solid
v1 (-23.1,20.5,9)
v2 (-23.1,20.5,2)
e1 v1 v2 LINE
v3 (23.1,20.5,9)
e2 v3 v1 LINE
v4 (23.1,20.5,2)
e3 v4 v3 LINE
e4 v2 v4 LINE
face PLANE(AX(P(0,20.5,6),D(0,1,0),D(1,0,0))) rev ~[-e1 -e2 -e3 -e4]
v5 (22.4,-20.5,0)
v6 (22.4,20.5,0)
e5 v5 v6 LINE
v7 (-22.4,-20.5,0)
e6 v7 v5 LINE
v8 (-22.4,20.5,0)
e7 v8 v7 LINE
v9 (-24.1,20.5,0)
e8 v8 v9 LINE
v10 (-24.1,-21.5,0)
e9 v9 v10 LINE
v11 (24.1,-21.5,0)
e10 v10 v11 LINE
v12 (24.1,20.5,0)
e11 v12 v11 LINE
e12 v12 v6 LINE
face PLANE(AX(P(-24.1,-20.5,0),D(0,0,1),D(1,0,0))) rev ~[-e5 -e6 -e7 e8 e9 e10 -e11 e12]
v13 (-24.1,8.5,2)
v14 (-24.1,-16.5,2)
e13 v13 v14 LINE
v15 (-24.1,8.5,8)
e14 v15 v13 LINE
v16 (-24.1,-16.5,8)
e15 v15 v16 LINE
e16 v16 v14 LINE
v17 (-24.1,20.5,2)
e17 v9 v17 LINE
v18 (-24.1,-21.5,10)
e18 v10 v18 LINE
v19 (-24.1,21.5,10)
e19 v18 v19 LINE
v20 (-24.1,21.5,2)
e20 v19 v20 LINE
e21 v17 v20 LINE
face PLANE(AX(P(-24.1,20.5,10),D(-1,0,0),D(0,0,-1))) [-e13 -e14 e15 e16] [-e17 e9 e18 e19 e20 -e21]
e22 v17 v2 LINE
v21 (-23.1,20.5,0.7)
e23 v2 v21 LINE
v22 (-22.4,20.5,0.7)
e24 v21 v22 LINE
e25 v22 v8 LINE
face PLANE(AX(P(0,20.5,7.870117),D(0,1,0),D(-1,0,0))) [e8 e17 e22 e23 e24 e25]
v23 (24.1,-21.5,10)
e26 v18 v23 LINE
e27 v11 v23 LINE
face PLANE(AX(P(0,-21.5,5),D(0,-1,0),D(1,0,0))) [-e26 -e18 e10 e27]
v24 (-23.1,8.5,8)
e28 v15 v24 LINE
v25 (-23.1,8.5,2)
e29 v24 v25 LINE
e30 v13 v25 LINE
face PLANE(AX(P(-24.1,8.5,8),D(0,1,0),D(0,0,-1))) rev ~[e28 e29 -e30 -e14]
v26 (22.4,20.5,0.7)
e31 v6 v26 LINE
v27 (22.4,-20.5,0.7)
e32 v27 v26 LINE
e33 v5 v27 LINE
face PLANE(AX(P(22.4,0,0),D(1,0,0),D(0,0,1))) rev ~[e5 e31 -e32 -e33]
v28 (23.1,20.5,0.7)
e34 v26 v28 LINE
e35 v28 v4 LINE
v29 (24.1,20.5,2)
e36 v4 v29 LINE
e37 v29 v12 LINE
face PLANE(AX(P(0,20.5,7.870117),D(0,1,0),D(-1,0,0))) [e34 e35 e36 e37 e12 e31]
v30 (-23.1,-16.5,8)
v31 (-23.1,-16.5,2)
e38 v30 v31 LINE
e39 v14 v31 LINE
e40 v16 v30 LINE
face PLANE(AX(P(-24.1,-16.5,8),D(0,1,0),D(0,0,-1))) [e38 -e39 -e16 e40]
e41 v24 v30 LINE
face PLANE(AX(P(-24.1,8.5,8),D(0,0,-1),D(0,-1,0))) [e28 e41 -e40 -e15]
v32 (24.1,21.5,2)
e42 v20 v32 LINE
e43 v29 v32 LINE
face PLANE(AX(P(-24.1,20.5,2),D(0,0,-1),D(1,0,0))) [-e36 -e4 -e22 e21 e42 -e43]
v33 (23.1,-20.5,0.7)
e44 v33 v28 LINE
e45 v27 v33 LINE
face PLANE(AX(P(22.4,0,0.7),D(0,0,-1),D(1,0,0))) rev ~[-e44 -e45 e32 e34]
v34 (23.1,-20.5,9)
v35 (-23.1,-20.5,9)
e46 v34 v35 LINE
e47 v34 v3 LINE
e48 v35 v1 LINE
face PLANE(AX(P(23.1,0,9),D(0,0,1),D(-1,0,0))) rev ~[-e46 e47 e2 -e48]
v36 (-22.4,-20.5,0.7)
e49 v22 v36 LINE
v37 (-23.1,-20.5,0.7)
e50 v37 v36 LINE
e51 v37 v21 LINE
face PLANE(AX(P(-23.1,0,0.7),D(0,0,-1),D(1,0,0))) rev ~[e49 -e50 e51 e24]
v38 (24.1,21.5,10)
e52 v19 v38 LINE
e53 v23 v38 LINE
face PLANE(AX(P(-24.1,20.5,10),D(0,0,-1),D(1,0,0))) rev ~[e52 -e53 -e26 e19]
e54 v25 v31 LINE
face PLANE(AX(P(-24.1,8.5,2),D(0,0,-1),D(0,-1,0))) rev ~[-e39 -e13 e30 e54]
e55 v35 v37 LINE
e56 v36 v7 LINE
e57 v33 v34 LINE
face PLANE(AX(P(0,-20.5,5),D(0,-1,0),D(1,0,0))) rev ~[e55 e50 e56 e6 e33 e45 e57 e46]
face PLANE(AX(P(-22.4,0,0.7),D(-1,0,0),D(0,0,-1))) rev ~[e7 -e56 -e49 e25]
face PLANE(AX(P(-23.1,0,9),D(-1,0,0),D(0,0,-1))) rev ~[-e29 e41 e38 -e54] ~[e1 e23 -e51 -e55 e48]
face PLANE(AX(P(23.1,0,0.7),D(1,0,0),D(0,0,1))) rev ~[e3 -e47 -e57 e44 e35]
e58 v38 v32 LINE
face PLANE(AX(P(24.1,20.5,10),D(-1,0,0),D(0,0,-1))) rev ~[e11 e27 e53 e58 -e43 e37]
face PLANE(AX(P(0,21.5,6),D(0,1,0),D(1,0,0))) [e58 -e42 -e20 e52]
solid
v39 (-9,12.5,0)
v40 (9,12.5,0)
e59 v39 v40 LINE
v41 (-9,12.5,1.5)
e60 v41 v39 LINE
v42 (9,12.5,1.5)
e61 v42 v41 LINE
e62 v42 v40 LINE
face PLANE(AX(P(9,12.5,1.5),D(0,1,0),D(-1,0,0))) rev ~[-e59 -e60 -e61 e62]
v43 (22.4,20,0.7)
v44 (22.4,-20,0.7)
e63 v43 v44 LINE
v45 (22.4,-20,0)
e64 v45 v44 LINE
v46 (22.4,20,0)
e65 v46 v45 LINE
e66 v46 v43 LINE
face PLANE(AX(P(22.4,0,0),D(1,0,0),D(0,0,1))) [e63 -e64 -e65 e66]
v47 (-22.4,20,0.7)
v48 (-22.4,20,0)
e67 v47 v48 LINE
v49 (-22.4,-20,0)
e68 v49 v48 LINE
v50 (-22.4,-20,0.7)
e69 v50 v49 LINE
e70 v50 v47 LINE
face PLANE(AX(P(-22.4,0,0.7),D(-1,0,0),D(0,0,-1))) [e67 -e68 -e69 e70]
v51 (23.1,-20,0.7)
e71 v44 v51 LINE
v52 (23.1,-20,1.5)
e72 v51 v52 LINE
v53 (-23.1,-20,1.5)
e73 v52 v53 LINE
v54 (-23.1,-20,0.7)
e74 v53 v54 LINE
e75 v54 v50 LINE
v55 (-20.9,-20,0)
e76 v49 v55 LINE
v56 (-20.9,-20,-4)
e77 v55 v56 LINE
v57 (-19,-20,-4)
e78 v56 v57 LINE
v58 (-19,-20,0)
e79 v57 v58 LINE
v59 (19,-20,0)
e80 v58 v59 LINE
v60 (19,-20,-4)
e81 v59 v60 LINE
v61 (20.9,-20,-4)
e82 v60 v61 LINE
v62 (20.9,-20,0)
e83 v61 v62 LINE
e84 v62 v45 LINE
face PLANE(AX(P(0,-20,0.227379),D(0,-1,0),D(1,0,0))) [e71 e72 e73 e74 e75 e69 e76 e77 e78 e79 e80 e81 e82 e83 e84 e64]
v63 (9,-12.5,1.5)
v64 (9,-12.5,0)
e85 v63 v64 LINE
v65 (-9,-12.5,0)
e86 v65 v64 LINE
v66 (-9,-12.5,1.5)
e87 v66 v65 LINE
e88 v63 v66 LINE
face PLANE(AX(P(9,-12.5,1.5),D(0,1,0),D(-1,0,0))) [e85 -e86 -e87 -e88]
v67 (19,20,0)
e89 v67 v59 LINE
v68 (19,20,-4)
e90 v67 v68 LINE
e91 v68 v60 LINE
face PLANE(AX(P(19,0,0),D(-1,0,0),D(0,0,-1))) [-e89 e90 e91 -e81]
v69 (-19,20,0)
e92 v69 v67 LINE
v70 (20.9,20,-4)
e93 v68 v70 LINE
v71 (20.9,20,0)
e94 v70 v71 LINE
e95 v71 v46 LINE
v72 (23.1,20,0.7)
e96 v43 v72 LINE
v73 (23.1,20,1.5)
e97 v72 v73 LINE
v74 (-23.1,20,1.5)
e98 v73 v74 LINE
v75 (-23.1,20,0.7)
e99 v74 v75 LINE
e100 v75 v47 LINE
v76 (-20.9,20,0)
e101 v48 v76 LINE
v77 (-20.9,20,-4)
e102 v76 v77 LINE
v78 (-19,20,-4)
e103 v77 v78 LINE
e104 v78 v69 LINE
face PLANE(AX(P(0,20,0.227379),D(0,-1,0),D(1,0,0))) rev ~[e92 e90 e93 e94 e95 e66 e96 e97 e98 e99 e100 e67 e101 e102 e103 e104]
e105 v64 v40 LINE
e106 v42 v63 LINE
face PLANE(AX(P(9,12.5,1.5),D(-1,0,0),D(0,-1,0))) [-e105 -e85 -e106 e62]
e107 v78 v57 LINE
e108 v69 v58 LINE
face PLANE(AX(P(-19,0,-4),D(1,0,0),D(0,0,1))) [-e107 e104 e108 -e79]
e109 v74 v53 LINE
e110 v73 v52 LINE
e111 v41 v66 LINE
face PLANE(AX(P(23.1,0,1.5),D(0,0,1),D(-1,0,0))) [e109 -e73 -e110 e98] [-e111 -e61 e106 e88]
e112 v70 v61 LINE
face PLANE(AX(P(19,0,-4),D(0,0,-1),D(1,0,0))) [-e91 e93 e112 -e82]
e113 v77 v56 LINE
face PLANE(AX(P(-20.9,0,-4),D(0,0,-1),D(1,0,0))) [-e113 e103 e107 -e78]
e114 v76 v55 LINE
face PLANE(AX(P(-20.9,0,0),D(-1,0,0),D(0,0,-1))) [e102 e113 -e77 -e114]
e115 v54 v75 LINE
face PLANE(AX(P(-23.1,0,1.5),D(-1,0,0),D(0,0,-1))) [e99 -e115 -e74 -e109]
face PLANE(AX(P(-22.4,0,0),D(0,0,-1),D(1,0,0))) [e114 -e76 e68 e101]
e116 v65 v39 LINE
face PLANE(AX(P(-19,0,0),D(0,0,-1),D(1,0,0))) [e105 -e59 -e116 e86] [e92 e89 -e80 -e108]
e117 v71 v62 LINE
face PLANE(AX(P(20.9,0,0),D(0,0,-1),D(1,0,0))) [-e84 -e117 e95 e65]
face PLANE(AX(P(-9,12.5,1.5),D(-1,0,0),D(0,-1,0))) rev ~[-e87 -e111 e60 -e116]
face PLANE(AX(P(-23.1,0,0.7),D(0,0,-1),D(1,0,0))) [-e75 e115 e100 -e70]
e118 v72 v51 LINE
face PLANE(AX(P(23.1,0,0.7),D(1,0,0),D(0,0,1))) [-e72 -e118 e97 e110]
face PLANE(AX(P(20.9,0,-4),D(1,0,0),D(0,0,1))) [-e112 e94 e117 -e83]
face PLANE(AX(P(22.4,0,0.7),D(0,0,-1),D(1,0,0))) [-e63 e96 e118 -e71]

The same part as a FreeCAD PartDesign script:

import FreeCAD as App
import Part
import Sketcher
Q = App.Units.Quantity


def add_polygon(sketch, points):
    """Adds a closed chain of lines whose ends are joined by coincident constraints."""
    first, n = sketch.GeometryCount, len(points)
    for a, b in zip(points, points[1:] + points[:1]):
        sketch.addGeometry(Part.LineSegment(App.Vector(*a, 0), App.Vector(*b, 0)), False)
    for i in range(n):
        sketch.addConstraint(Sketcher.Constraint("Coincident", first + i, 2, first + (i + 1) % n, 1))

doc = App.newDocument("Part")
body = doc.addObject("PartDesign::Body", "Body")

# Sketch on XZ plane
sketch1 = body.newObject("Sketcher::SketchObject", "Sketch")
sketch1.AttachmentSupport = (doc.getObject("XZ_Plane"), [""])
sketch1.MapMode = "FlatFace"
add_polygon(sketch1, [(-22.4, 0), (-20.9, 0), (-20.9, -4), (-19, -4), (-19, 0), (19, 0), (19, -4), (20.9, -4), (20.9, 0), (22.4, 0), (22.4, 0.7), (23.1, 0.7), (23.1, 1.5), (-23.1, 1.5), (-23.1, 0.7), (-22.4, 0.7)])  # lines 0-15
sketch1.addConstraint([
    Sketcher.Constraint("Horizontal", 0),
    Sketcher.Constraint("Vertical", 1),
    Sketcher.Constraint("Horizontal", 2),
    Sketcher.Constraint("Vertical", 3),
    Sketcher.Constraint("Horizontal", 4),
    Sketcher.Constraint("Vertical", 5),
    Sketcher.Constraint("Horizontal", 6),
    Sketcher.Constraint("Vertical", 7),
    Sketcher.Constraint("Horizontal", 8),
    Sketcher.Constraint("Vertical", 9),
    Sketcher.Constraint("Horizontal", 10),
    Sketcher.Constraint("Vertical", 11),
    Sketcher.Constraint("Horizontal", 12),
    Sketcher.Constraint("Vertical", 13),
    Sketcher.Constraint("Horizontal", 14),
    Sketcher.Constraint("Vertical", 15),
    Sketcher.Constraint("Symmetric", 3, 2, 4, 2, -1, 1),
    Sketcher.Constraint("Symmetric", 0, 2, 7, 2, -1, 1),
    Sketcher.Constraint("Symmetric", 10, 2, 13, 2, -2),
    Sketcher.Constraint("Symmetric", 8, 2, 15, 2, -2),
    Sketcher.Constraint("Horizontal", 2, 2, 5, 2),
    Sketcher.Constraint("Equal", 14, 9),
    Sketcher.Constraint("DistanceX", 4, 1, 4, 2, Q("38 mm")),
    Sketcher.Constraint("DistanceY", 1, 2, 1, 1, Q("4 mm")),
    Sketcher.Constraint("DistanceX", 0, 1, 0, 2, Q("1.5 mm")),
    Sketcher.Constraint("DistanceX", 2, 1, 2, 2, Q("1.9 mm")),
    Sketcher.Constraint("DistanceX", 10, 1, 10, 2, Q("0.7 mm")),
    Sketcher.Constraint("DistanceY", 11, 1, 11, 2, Q("0.8 mm")),
])
pad1 = body.newObject("PartDesign::Pad", "Pad")
pad1.Profile = sketch1
pad1.Length = 40
pad1.Midplane = True

# Sketch on XY plane
sketch2 = body.newObject("Sketcher::SketchObject", "Sketch001")
sketch2.AttachmentSupport = (doc.getObject("XY_Plane"), [""])
sketch2.MapMode = "FlatFace"
sketch2.AttachmentOffset = App.Placement(App.Vector(0, 0, 1.5), App.Rotation())
add_polygon(sketch2, [(9, -12), (9, 12), (-9, 12), (-9, -12)])  # lines 0-3
sketch2.addConstraint([
    Sketcher.Constraint("Vertical", 0),
    Sketcher.Constraint("Horizontal", 1),
    Sketcher.Constraint("Vertical", 2),
    Sketcher.Constraint("Horizontal", 3),
    Sketcher.Constraint("Symmetric", 0, 2, 2, 2, -1, 1),
    Sketcher.Constraint("DistanceX", 1, 2, 1, 1, Q("18 mm")),
    Sketcher.Constraint("DistanceY", 0, 1, 0, 2, Q("25 mm")),
])
pocket1 = body.newObject("PartDesign::Pocket", "Pocket")
pocket1.Profile = sketch2
pocket1.Length = 5
body2 = doc.addObject("PartDesign::Body", "Body001")

# Sketch on XZ plane
sketch3 = body2.newObject("Sketcher::SketchObject", "Sketch002")
sketch3.AttachmentSupport = (doc.getObject("XZ_Plane001"), [""])
sketch3.MapMode = "FlatFace"
add_polygon(sketch3, [(-24.1, 10), (-24.1, 0), (-22.4, 0), (-22.4, 0.7), (-23.1, 0.7), (-23.1, 9), (23.1, 9), (23.1, 0.7), (22.4, 0.7), (22.4, 0), (24.1, 0), (24.1, 10)])  # lines 0-11
sketch3.addConstraint([
    Sketcher.Constraint("Vertical", 0),
    Sketcher.Constraint("Horizontal", 1),
    Sketcher.Constraint("Vertical", 2),
    Sketcher.Constraint("Horizontal", 3),
    Sketcher.Constraint("Vertical", 4),
    Sketcher.Constraint("Horizontal", 5),
    Sketcher.Constraint("Vertical", 6),
    Sketcher.Constraint("Horizontal", 7),
    Sketcher.Constraint("Vertical", 8),
    Sketcher.Constraint("Horizontal", 9),
    Sketcher.Constraint("Vertical", 10),
    Sketcher.Constraint("Horizontal", 11),
    Sketcher.Constraint("Symmetric", 1, 2, 8, 2, -1, 1),
    Sketcher.Constraint("Symmetric", 3, 2, 6, 2, -2),
    Sketcher.Constraint("Symmetric", 0, 2, 9, 2, -2),
    Sketcher.Constraint("Equal", 7, 2),
    Sketcher.Constraint("DistanceY", 0, 2, 0, 1, Q("10 mm")),
    Sketcher.Constraint("DistanceX", 1, 1, 1, 2, Q("1.7 mm")),
    Sketcher.Constraint("DistanceX", 3, 2, 3, 1, Q("0.7 mm")),
    Sketcher.Constraint("DistanceX", 5, 1, 5, 2, Q("46.2 mm")),
    Sketcher.Constraint("DistanceY", 4, 1, 4, 2, Q("8.3 mm")),
])
pad2 = body2.newObject("PartDesign::Pad", "Pad001")
pad2.Profile = sketch3
pad2.Length = 41
pad2.Midplane = True

# Sketch on XZ plane
sketch4 = body2.newObject("Sketcher::SketchObject", "Sketch003")
sketch4.AttachmentSupport = (doc.getObject("XZ_Plane001"), [""])
sketch4.MapMode = "FlatFace"
sketch4.AttachmentOffset = App.Placement(App.Vector(0, 0, 20.5), App.Rotation())
add_polygon(sketch4, [(-24, 10), (-24, 0), (24, 0), (24, 10)])  # lines 0-3
sketch4.addConstraint([
    Sketcher.Constraint("Vertical", 0),
    Sketcher.Constraint("Horizontal", 1),
    Sketcher.Constraint("Vertical", 2),
    Sketcher.Constraint("Horizontal", 3),
    Sketcher.Constraint("Symmetric", 0, 2, 1, 2, -1, 1),
    Sketcher.Constraint("DistanceY", 0, 2, 0, 1, Q("10 mm")),
    Sketcher.Constraint("DistanceX", 1, 1, 1, 2, Q("48.2 mm")),
])
pad3 = body2.newObject("PartDesign::Pad", "Pad002")
pad3.Profile = sketch4
pad3.Length = 1

# Sketch on YZ plane
sketch5 = body2.newObject("Sketcher::SketchObject", "Sketch004")
sketch5.AttachmentSupport = (doc.getObject("YZ_Plane001"), [""])
sketch5.MapMode = "FlatFace"
sketch5.AttachmentOffset = App.Placement(App.Vector(0, 0, -24.1), App.Rotation())
add_polygon(sketch5, [(-16, 8), (8, 8), (8, 2), (-16, 2)])  # lines 0-3
sketch5.addConstraint([
    Sketcher.Constraint("Horizontal", 0),
    Sketcher.Constraint("Vertical", 1),
    Sketcher.Constraint("Horizontal", 2),
    Sketcher.Constraint("Vertical", 3),
    Sketcher.Constraint("DistanceX", 0, 1, 0, 2, Q("25 mm")),
    Sketcher.Constraint("DistanceY", 1, 2, 1, 1, Q("6 mm")),
    Sketcher.Constraint("DistanceY", -1, 1, 0, 2, Q("8 mm")),
    Sketcher.Constraint("DistanceX", -1, 1, 0, 2, Q("8.5 mm")),
])
pocket2 = body2.newObject("PartDesign::Pocket", "Pocket001")
pocket2.Profile = sketch5
pocket2.Length = 5
pocket2.Reversed = True

# Sketch on XZ plane
sketch6 = body2.newObject("Sketcher::SketchObject", "Sketch005")
sketch6.AttachmentSupport = (doc.getObject("XZ_Plane001"), [""])
sketch6.MapMode = "FlatFace"
sketch6.AttachmentOffset = App.Placement(App.Vector(0, 0, -20.5), App.Rotation())
add_polygon(sketch6, [(-24, 2), (-24, 10), (24, 10), (24, 2)])  # lines 0-3
sketch6.addConstraint([
    Sketcher.Constraint("Vertical", 0),
    Sketcher.Constraint("Horizontal", 1),
    Sketcher.Constraint("Vertical", 2),
    Sketcher.Constraint("Horizontal", 3),
    Sketcher.Constraint("DistanceY", 0, 1, 0, 2, Q("8 mm")),
    Sketcher.Constraint("DistanceX", 1, 1, 1, 2, Q("48.2 mm")),
    Sketcher.Constraint("DistanceY", -1, 1, 0, 2, Q("10 mm")),
    Sketcher.Constraint("DistanceX", 0, 2, -1, 1, Q("24.1 mm")),
])
pad4 = body2.newObject("PartDesign::Pad", "Pad003")
pad4.Profile = sketch6
pad4.Length = 1
pad4.Reversed = True

doc.recompute()
